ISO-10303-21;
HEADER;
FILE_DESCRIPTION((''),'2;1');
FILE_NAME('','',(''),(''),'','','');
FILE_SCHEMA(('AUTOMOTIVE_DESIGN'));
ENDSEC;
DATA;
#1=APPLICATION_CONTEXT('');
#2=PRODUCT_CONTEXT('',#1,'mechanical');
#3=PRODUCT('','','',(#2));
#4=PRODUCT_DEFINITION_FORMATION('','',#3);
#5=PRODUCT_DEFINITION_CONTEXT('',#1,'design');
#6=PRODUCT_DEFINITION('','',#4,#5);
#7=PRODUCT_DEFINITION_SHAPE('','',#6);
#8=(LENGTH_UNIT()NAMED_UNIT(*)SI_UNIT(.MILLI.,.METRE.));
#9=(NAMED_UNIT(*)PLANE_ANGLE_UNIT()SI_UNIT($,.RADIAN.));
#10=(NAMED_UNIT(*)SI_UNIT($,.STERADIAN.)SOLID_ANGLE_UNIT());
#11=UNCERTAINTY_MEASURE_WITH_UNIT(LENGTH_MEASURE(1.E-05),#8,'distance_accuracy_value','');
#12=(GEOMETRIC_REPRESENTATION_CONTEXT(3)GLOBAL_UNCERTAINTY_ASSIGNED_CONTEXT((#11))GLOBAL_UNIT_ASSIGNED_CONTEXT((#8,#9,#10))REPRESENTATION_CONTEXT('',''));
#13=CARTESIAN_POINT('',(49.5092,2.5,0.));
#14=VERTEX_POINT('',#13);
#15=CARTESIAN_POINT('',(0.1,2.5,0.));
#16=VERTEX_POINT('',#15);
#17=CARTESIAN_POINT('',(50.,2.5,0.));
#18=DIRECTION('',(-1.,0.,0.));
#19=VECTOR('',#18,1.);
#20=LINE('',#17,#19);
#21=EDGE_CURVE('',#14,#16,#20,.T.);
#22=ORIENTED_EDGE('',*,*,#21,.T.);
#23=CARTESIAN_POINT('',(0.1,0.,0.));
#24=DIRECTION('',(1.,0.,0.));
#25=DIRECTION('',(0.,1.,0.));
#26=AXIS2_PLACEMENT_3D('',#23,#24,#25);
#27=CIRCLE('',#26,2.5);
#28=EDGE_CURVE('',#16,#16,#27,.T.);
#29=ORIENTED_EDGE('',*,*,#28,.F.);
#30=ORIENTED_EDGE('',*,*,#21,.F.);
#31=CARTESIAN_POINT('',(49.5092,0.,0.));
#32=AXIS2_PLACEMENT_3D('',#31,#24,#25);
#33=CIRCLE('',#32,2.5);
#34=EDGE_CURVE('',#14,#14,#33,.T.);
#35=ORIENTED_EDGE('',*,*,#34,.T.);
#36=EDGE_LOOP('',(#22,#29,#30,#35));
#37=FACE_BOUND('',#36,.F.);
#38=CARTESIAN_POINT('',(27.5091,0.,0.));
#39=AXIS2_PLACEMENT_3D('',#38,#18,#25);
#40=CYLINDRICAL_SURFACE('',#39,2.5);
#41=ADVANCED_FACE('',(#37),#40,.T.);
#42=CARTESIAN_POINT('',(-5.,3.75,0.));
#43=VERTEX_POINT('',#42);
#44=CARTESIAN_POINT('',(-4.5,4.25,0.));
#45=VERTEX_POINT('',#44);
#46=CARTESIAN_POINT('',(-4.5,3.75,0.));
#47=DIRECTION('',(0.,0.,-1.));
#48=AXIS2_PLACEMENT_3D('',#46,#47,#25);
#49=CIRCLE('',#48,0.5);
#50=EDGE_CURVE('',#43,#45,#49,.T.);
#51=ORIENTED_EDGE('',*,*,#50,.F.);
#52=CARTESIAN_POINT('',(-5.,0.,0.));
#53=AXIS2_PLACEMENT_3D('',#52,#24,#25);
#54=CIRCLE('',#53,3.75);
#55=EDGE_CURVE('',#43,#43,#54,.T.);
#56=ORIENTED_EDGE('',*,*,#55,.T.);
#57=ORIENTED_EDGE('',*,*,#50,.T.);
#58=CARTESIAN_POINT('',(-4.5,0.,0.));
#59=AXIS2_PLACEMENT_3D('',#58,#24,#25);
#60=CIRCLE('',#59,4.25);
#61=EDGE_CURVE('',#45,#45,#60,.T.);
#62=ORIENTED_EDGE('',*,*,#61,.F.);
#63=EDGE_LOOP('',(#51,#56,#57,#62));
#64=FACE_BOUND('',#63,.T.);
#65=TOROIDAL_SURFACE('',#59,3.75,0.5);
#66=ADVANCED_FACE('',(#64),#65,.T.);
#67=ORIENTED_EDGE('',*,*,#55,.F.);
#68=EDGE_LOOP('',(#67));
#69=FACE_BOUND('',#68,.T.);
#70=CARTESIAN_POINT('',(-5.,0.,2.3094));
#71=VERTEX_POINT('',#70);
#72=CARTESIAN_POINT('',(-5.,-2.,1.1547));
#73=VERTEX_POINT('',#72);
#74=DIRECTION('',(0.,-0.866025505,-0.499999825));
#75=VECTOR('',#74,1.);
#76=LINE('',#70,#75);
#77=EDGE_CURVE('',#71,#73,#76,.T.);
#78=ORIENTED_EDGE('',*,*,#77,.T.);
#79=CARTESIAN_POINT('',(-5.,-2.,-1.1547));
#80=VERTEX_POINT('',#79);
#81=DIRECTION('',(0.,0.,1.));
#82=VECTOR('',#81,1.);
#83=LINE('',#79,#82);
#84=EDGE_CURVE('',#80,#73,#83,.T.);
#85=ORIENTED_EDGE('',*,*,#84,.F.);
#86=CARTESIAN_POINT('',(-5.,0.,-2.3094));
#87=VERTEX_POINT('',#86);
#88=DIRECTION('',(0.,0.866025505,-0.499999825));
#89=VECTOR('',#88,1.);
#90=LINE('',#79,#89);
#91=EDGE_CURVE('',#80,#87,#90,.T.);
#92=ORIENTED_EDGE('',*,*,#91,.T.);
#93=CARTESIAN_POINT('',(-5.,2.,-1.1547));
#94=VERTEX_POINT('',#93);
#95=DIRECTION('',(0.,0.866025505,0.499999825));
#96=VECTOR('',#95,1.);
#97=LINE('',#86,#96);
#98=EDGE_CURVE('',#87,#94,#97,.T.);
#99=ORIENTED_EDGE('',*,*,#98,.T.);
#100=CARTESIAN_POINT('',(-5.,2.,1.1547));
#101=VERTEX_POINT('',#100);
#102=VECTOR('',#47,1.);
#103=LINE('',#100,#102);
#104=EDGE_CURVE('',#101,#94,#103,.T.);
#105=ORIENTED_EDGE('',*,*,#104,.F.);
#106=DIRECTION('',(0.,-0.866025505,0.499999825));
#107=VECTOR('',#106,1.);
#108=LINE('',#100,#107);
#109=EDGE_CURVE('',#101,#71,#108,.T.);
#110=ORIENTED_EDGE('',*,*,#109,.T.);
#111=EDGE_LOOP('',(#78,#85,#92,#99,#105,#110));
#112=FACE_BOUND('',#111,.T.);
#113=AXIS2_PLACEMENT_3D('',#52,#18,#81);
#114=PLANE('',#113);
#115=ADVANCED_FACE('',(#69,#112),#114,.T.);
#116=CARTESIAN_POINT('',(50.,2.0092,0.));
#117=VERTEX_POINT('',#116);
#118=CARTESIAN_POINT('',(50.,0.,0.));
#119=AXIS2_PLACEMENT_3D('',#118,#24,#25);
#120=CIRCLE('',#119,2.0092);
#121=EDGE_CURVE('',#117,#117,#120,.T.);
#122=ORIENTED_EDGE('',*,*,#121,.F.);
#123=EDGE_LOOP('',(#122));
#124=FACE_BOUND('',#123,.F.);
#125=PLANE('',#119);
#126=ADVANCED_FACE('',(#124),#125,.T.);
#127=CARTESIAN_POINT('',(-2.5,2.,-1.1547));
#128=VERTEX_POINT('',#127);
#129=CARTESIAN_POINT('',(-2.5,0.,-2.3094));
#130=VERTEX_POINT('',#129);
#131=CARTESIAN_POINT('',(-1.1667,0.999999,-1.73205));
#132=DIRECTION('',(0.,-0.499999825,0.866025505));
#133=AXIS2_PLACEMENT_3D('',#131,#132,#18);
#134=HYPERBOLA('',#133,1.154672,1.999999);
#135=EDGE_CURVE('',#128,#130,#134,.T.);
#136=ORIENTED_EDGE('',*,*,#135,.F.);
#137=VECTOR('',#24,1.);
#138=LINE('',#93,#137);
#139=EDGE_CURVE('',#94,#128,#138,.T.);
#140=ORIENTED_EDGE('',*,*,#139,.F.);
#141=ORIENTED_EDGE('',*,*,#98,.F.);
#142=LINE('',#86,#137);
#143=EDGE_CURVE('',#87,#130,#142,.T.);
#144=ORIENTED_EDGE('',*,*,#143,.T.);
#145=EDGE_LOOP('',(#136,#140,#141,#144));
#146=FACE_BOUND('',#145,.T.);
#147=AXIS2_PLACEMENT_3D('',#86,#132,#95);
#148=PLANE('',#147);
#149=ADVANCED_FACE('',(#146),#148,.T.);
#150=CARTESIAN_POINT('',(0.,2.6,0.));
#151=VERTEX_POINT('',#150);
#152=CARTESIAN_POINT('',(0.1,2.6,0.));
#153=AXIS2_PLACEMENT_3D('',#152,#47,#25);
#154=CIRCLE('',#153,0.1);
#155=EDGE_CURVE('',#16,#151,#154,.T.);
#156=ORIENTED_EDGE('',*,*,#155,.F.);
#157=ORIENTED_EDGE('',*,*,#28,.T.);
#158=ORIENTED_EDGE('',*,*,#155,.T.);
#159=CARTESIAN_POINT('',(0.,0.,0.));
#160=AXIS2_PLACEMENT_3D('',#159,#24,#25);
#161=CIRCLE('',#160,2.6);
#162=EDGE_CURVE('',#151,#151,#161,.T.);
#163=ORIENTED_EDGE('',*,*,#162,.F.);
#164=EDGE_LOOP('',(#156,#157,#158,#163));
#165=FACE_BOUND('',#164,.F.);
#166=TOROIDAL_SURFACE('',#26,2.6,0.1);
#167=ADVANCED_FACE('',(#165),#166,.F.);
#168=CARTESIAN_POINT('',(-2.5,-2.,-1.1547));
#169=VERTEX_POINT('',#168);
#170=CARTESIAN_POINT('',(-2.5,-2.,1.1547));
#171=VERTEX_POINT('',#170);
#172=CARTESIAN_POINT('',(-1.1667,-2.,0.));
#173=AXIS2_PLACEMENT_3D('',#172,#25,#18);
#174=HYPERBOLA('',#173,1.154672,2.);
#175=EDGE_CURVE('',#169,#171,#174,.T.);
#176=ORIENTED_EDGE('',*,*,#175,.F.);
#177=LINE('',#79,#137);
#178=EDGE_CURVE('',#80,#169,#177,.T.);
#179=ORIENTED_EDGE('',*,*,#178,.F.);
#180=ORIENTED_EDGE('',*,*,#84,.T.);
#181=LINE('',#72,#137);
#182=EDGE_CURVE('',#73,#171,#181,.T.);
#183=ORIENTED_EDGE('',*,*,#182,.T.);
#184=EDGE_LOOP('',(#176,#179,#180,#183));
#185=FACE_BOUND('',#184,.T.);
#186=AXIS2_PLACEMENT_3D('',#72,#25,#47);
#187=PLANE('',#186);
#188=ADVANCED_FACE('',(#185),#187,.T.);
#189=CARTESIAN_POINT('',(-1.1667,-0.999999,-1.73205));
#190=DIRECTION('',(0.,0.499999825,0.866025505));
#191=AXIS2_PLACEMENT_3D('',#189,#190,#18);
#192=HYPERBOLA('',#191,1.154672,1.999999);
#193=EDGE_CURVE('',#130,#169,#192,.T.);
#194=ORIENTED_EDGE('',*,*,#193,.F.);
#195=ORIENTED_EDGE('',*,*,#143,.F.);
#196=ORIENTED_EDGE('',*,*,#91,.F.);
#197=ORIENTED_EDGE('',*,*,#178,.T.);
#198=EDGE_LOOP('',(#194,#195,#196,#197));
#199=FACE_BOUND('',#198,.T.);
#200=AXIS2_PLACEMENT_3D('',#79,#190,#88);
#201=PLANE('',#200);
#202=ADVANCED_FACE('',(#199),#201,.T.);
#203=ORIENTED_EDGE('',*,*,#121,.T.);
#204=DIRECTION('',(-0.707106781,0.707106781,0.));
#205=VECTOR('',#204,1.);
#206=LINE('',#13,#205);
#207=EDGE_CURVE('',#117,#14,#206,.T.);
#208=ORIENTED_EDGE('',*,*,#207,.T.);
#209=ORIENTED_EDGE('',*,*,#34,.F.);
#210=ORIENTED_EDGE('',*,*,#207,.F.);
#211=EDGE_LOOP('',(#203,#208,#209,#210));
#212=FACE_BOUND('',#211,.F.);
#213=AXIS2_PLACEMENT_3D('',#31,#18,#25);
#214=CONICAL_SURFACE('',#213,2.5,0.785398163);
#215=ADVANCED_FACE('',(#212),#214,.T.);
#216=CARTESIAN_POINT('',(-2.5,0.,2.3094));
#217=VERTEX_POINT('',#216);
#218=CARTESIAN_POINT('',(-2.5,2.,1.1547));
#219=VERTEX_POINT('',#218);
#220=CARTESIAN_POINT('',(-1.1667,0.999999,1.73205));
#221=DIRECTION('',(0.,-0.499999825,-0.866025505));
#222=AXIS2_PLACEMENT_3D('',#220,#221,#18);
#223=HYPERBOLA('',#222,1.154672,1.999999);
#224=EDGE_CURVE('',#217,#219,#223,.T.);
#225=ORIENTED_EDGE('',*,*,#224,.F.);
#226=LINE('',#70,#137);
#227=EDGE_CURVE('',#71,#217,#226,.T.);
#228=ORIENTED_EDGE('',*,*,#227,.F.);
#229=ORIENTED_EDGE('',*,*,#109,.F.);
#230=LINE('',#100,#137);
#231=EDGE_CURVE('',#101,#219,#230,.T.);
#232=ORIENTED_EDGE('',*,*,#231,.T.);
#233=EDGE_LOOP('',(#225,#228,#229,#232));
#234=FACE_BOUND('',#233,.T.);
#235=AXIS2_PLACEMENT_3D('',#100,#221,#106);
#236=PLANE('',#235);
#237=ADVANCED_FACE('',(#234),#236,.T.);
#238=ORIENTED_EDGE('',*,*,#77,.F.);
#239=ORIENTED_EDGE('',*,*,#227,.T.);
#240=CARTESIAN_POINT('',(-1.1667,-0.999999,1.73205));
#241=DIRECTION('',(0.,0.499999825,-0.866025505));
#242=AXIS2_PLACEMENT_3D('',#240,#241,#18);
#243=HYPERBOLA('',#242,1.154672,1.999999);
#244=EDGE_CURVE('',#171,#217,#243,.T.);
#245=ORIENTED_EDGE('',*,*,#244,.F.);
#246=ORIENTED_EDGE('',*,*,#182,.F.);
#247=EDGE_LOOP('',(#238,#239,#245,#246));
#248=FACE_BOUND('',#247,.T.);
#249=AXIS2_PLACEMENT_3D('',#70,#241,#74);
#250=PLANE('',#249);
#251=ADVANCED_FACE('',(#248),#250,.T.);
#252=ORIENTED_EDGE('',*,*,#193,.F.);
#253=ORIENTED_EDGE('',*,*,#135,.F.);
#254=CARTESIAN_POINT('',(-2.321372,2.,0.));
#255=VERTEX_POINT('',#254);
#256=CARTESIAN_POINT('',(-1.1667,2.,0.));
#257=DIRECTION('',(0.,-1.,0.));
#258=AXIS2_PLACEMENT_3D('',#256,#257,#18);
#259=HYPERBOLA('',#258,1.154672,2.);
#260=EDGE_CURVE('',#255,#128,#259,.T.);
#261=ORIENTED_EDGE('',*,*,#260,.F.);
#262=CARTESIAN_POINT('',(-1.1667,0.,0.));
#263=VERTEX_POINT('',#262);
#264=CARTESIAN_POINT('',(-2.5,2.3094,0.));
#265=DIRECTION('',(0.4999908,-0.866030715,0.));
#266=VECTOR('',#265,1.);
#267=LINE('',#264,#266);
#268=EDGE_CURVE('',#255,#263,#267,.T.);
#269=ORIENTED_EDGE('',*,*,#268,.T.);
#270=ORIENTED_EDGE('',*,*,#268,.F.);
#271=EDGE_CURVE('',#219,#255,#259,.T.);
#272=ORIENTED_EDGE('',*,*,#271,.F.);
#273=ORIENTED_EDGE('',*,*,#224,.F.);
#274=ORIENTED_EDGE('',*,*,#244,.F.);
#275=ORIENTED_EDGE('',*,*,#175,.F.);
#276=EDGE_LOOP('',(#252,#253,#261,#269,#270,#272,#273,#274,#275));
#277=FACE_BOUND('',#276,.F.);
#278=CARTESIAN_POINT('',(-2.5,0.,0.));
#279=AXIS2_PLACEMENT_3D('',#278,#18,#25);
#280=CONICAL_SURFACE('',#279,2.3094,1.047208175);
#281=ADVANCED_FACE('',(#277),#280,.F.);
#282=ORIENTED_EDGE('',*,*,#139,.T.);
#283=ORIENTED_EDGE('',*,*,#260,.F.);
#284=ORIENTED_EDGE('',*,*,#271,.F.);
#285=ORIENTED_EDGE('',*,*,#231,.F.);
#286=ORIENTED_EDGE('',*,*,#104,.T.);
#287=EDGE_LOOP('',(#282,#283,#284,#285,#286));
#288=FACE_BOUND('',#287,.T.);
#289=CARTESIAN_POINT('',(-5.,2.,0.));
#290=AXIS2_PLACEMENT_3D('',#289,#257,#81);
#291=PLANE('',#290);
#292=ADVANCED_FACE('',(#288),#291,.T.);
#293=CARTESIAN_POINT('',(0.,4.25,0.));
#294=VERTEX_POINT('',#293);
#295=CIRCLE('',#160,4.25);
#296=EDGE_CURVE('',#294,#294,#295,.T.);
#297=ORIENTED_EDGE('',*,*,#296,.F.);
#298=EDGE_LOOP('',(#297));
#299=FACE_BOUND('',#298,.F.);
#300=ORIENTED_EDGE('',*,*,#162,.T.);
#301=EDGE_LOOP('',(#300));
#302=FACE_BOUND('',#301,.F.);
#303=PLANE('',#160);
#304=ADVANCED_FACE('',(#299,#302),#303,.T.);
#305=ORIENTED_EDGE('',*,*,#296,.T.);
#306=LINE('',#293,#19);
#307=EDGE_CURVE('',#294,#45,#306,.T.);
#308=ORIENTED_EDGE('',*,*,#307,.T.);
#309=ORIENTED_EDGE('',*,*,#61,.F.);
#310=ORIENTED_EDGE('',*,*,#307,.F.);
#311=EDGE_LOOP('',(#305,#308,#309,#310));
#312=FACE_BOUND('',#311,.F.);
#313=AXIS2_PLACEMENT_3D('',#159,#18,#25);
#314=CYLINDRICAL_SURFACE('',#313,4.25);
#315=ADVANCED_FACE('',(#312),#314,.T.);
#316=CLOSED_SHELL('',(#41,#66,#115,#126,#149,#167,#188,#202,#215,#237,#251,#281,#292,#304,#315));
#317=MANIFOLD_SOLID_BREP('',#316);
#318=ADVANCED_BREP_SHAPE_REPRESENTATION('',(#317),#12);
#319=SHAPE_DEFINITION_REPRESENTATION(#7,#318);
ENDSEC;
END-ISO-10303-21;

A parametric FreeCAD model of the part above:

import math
import FreeCAD as App
import Part
import Sketcher
from FreeCAD import Vector
Q = App.Units.Quantity


def edges_at(feature, points):
    """Names of the edges that pass closest to the given points."""
    edges = feature.Shape.Edges
    near = lambda p: min(range(len(edges)), key=lambda i: edges[i].distToShape(Part.Vertex(*p))[0])
    return sorted({f"Edge{near(p) + 1}" for p in points})

doc = App.newDocument("Part")
body = doc.addObject("PartDesign::Body", "Body")

# Sketch on XY plane
sketch1 = body.newObject("Sketcher::SketchObject", "Sketch")
sketch1.AttachmentSupport = (doc.getObject("XY_Plane"), [""])
sketch1.MapMode = "FlatFace"
sketch1.addGeometry([
    Part.LineSegment(Vector(-2.5, 2.3, 0), Vector(-1.2, 0, 0)),  # 0
    Part.LineSegment(Vector(-1.2, 0, 0), Vector(50, 0, 0)),  # 1
    Part.LineSegment(Vector(50, 0, 0), Vector(50, 2.5, 0)),  # 2
    Part.LineSegment(Vector(50, 2.5, 0), Vector(0, 2.5, 0)),  # 3
    Part.LineSegment(Vector(0, 2.5, 0), Vector(0, 4.2, 0)),  # 4
    Part.LineSegment(Vector(0, 4.2, 0), Vector(-5, 4.2, 0)),  # 5
    Part.LineSegment(Vector(-5, 4.2, 0), Vector(-5, 2.3, 0)),  # 6
    Part.LineSegment(Vector(-5, 2.3, 0), Vector(-2.5, 2.3, 0)),  # 7
], False)
sketch1.addConstraint([
    Sketcher.Constraint("Coincident", 0, 2, 1, 1),
    Sketcher.Constraint("Coincident", 1, 2, 2, 1),
    Sketcher.Constraint("Coincident", 2, 2, 3, 1),
    Sketcher.Constraint("Coincident", 3, 2, 4, 1),
    Sketcher.Constraint("Coincident", 4, 2, 5, 1),
    Sketcher.Constraint("Coincident", 5, 2, 6, 1),
    Sketcher.Constraint("Coincident", 6, 2, 7, 1),
    Sketcher.Constraint("Coincident", 7, 2, 0, 1),
    Sketcher.Constraint("Horizontal", 1),
    Sketcher.Constraint("Vertical", 2),
    Sketcher.Constraint("Horizontal", 3),
    Sketcher.Constraint("Vertical", 4),
    Sketcher.Constraint("Horizontal", 5),
    Sketcher.Constraint("Vertical", 6),
    Sketcher.Constraint("Horizontal", 7),
    Sketcher.Constraint("PointOnObject", 0, 2, -1),
    Sketcher.Constraint("PointOnObject", 3, 2, -2),
    Sketcher.Constraint("Equal", 7, 2),
    Sketcher.Constraint("DistanceX", 3, 2, 3, 1, 50.0),
    Sketcher.Constraint("DistanceX", 5, 2, 5, 1, 5.0),
    Sketcher.Constraint("DistanceX", 7, 1, 7, 2, 2.5),
    Sketcher.Constraint("Angle", 0, Q("-60.0006 deg")),
    Sketcher.Constraint("DistanceY", 4, 1, 4, 2, 1.75),
    Sketcher.Constraint("DistanceX", 1, 1, 1, 2, 51.1667),
])
revolution = body.newObject("PartDesign::Revolution", "Revolution")
revolution.Profile = sketch1
revolution.ReferenceAxis = (sketch1, ["H_Axis"])
revolution.Angle = 360

# Sketch on YZ plane
sketch2 = body.newObject("Sketcher::SketchObject", "Sketch001")
sketch2.AttachmentSupport = (doc.getObject("YZ_Plane"), [""])
sketch2.MapMode = "FlatFace"
sketch2.AttachmentOffset = App.Placement(Vector(0, 0, -5), App.Rotation())
sketch2.addGeometry([
    Part.LineSegment(Vector(2, 1.2, 0), Vector(0, 2.3, 0)),  # 0
    Part.ArcOfCircle(Part.Circle(Vector(0, 0, 0), Vector(0, 0, 1), 2.3), math.radians(30), math.radians(90)),  # 1
    Part.ArcOfCircle(Part.Circle(Vector(0, 0, 0), Vector(0, 0, 1), 2.3), math.radians(90), math.radians(150)),  # 2
    Part.LineSegment(Vector(0, 2.3, 0), Vector(-2, 1.2, 0)),  # 3
    Part.ArcOfCircle(Part.Circle(Vector(0, 0, 0), Vector(0, 0, 1), 2.3), math.radians(-30), math.radians(30)),  # 4
    Part.LineSegment(Vector(2, -1.2, 0), Vector(2, 1.2, 0)),  # 5
    Part.LineSegment(Vector(-2, 1.2, 0), Vector(-2, -1.2, 0)),  # 6
    Part.ArcOfCircle(Part.Circle(Vector(0, 0, 0), Vector(0, 0, 1), 2.3), math.radians(150), math.radians(210)),  # 7
    Part.LineSegment(Vector(-2, -1.2, 0), Vector(0, -2.3, 0)),  # 8
    Part.ArcOfCircle(Part.Circle(Vector(0, 0, 0), Vector(0, 0, 1), 2.3), math.radians(-150), math.radians(-90)),  # 9
    Part.ArcOfCircle(Part.Circle(Vector(0, 0, 0), Vector(0, 0, 1), 2.3), math.radians(-90), math.radians(-30)),  # 10
    Part.LineSegment(Vector(0, -2.3, 0), Vector(2, -1.2, 0)),  # 11
], False)
sketch2.addConstraint([
    Sketcher.Constraint("Coincident", 0, 1, 1, 1),
    Sketcher.Constraint("Coincident", 1, 2, 0, 2),
    Sketcher.Constraint("Coincident", 2, 1, 3, 1),
    Sketcher.Constraint("Coincident", 3, 2, 2, 2),
    Sketcher.Constraint("Coincident", 4, 1, 5, 1),
    Sketcher.Constraint("Coincident", 5, 2, 4, 2),
    Sketcher.Constraint("Coincident", 6, 1, 7, 1),
    Sketcher.Constraint("Coincident", 7, 2, 6, 2),
    Sketcher.Constraint("Coincident", 8, 1, 9, 1),
    Sketcher.Constraint("Coincident", 9, 2, 8, 2),
    Sketcher.Constraint("Coincident", 10, 1, 11, 1),
    Sketcher.Constraint("Coincident", 11, 2, 10, 2),
    Sketcher.Constraint("Vertical", 5),
    Sketcher.Constraint("Vertical", 6),
    Sketcher.Constraint("Coincident", 1, 3, -1, 1),
    Sketcher.Constraint("Coincident", 2, 3, -1, 1),
    Sketcher.Constraint("Coincident", 4, 3, -1, 1),
    Sketcher.Constraint("Coincident", 7, 3, -1, 1),
    Sketcher.Constraint("Coincident", 9, 3, -1, 1),
    Sketcher.Constraint("Coincident", 10, 3, -1, 1),
    Sketcher.Constraint("Coincident", 2, 1, 1, 2),
    Sketcher.Constraint("Coincident", 5, 2, 0, 1),
    Sketcher.Constraint("Coincident", 6, 1, 3, 2),
    Sketcher.Constraint("Coincident", 8, 1, 7, 2),
    Sketcher.Constraint("Coincident", 10, 1, 9, 2),
    Sketcher.Constraint("PointOnObject", 1, 2, -2),
    Sketcher.Constraint("PointOnObject", 9, 2, -2),
    Sketcher.Constraint("Parallel", 0, 8),
    Sketcher.Constraint("Parallel", 3, 11),
    Sketcher.Constraint("Angle", 0, Q("150 deg")),
    Sketcher.Constraint("DistanceX", -1, 1, 0, 1, 2.0),
])
pad1 = body.newObject("PartDesign::Pad", "Pad")
pad1.Profile = sketch2
pad1.Length = 2.6786
doc.recompute()

fillet = body.newObject("PartDesign::Fillet", "Fillet")
fillet.Base = (pad1, edges_at(pad1, [(-5, -4.25, 0)]))
fillet.Radius = 0.5
doc.recompute()

chamfer = body.newObject("PartDesign::Chamfer", "Chamfer")
chamfer.Base = (fillet, edges_at(fillet, [(50, -2.5, 0)]))
chamfer.ChamferType = "Two distances"
chamfer.Size = 0.4908
chamfer.Size2 = 0.4908
doc.recompute()

fillet2 = body.newObject("PartDesign::Fillet", "Fillet001")
fillet2.Base = (chamfer, edges_at(chamfer, [(0, -2.5, 0)]))
fillet2.Radius = 0.1

doc.recompute()
